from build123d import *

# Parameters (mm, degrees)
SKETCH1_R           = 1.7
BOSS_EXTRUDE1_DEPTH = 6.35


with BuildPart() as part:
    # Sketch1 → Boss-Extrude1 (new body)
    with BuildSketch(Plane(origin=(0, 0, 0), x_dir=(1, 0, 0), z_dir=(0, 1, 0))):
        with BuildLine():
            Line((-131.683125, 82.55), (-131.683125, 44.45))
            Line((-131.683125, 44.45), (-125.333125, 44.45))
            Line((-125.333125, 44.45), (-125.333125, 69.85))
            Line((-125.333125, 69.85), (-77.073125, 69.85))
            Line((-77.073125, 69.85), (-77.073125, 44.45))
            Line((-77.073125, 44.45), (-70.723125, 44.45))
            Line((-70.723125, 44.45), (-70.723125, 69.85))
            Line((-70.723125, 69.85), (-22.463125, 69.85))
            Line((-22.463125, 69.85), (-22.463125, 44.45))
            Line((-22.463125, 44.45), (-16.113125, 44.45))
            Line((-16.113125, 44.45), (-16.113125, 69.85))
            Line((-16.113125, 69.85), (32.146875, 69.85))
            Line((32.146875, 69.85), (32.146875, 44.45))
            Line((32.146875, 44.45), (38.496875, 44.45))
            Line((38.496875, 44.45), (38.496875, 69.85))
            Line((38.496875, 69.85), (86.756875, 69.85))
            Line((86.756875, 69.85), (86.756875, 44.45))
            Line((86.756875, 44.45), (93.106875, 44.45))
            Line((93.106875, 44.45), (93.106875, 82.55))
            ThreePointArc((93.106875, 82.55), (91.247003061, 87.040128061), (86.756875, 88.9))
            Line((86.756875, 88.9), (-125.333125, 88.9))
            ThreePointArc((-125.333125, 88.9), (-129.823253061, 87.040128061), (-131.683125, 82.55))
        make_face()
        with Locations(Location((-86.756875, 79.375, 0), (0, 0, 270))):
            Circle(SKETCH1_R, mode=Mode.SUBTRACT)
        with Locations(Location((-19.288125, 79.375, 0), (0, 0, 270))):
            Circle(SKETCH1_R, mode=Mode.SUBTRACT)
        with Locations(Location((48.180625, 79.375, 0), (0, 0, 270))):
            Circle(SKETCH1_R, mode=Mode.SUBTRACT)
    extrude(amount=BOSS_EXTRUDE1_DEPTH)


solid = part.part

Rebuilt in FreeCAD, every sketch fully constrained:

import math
import FreeCAD as App
import Part
import Sketcher

V = App.Vector
Q = App.Units.Quantity

doc = App.newDocument("Part")
params = doc.addObject("Spreadsheet::Sheet", "Params")
for row, (alias, value) in enumerate([
    ("sketch1_height", "1 in"),
    ("sketch1_radius", "0.25 in"),
    ("sketch1_width", "1.9 in"),
    ("sketch1_height2", "1.5 in"),
    ("pad1_length", "0.25 in"),
], start=1):
    params.set(f"A{row}", alias)
    params.set(f"B{row}", "=" + value)
    params.setAlias(f"B{row}", alias)

body = doc.addObject("PartDesign::Body", "Body")

sketch1 = body.newObject("Sketcher::SketchObject", "Sketch")
sketch1.AttachmentSupport = (doc.getObject("XZ_Plane"), [""])
sketch1.MapMode = "FlatFace"
sketch1.addGeometry([
    Part.LineSegment(V(-131.7, -82.5, 0), V(-131.7, -44.5, 0)),
    Part.LineSegment(V(-131.7, -44.5, 0), V(-125.3, -44.5, 0)),
    Part.LineSegment(V(-125.3, -44.5, 0), V(-125.3, -69.8, 0)),
    Part.LineSegment(V(-125.3, -69.8, 0), V(-77.1, -69.8, 0)),
    Part.LineSegment(V(-77.1, -69.8, 0), V(-77.1, -44.5, 0)),
    Part.LineSegment(V(-77.1, -44.5, 0), V(-70.7, -44.5, 0)),
    Part.LineSegment(V(-70.7, -44.5, 0), V(-70.7, -69.8, 0)),
    Part.LineSegment(V(-70.7, -69.8, 0), V(-22.5, -69.8, 0)),
    Part.LineSegment(V(-22.5, -69.8, 0), V(-22.5, -44.5, 0)),
    Part.LineSegment(V(-22.5, -44.5, 0), V(-16.1, -44.5, 0)),
    Part.LineSegment(V(-16.1, -44.5, 0), V(-16.1, -69.8, 0)),
    Part.LineSegment(V(-16.1, -69.8, 0), V(32.1, -69.8, 0)),
    Part.LineSegment(V(32.1, -69.8, 0), V(32.1, -44.5, 0)),
    Part.LineSegment(V(32.1, -44.5, 0), V(38.5, -44.5, 0)),
    Part.LineSegment(V(38.5, -44.5, 0), V(38.5, -69.8, 0)),
    Part.LineSegment(V(38.5, -69.8, 0), V(86.8, -69.8, 0)),
    Part.LineSegment(V(86.8, -69.8, 0), V(86.8, -44.5, 0)),
    Part.LineSegment(V(86.8, -44.5, 0), V(93.1, -44.5, 0)),
    Part.LineSegment(V(93.1, -44.5, 0), V(93.1, -82.5, 0)),
    Part.ArcOfCircle(Part.Circle(V(86.8, -82.6, 0), V(0, 0, 1), 6.3), math.radians(-90), math.radians(0)),
    Part.LineSegment(V(86.8, -88.9, 0), V(-125.3, -88.9, 0)),
    Part.ArcOfCircle(Part.Circle(V(-125.3, -82.6, 0), V(0, 0, 1), 6.3), math.radians(180), math.radians(270)),
    Part.Circle(V(-86.8, -79.4, 0), V(0, 0, 1), 1.7),
    Part.Circle(V(-19.3, -79.4, 0), V(0, 0, 1), 1.7),
    Part.Circle(V(48.2, -79.4, 0), V(0, 0, 1), 1.7),
], False)
sketch1.addConstraint([
    Sketcher.Constraint("Coincident", 0, 2, 1, 1),
    Sketcher.Constraint("Coincident", 1, 2, 2, 1),
    Sketcher.Constraint("Coincident", 2, 2, 3, 1),
    Sketcher.Constraint("Coincident", 3, 2, 4, 1),
    Sketcher.Constraint("Coincident", 4, 2, 5, 1),
    Sketcher.Constraint("Coincident", 5, 2, 6, 1),
    Sketcher.Constraint("Coincident", 6, 2, 7, 1),
    Sketcher.Constraint("Coincident", 7, 2, 8, 1),
    Sketcher.Constraint("Coincident", 8, 2, 9, 1),
    Sketcher.Constraint("Coincident", 9, 2, 10, 1),
    Sketcher.Constraint("Coincident", 10, 2, 11, 1),
    Sketcher.Constraint("Coincident", 11, 2, 12, 1),
    Sketcher.Constraint("Coincident", 12, 2, 13, 1),
    Sketcher.Constraint("Coincident", 13, 2, 14, 1),
    Sketcher.Constraint("Coincident", 14, 2, 15, 1),
    Sketcher.Constraint("Coincident", 15, 2, 16, 1),
    Sketcher.Constraint("Coincident", 16, 2, 17, 1),
    Sketcher.Constraint("Coincident", 17, 2, 18, 1),
    Sketcher.Constraint("Tangent", 18, 2, 19, 2),
    Sketcher.Constraint("Tangent", 19, 1, 20, 1),
    Sketcher.Constraint("Tangent", 20, 2, 21, 2),
    Sketcher.Constraint("Tangent", 21, 1, 0, 1),
    Sketcher.Constraint("Vertical", 0),
    Sketcher.Constraint("Horizontal", 1),
    Sketcher.Constraint("Vertical", 2),
    Sketcher.Constraint("Horizontal", 3),
    Sketcher.Constraint("Vertical", 4),
    Sketcher.Constraint("Horizontal", 5),
    Sketcher.Constraint("Vertical", 6),
    Sketcher.Constraint("Horizontal", 7),
    Sketcher.Constraint("Vertical", 8),
    Sketcher.Constraint("Horizontal", 9),
    Sketcher.Constraint("Vertical", 10),
    Sketcher.Constraint("Horizontal", 11),
    Sketcher.Constraint("Vertical", 12),
    Sketcher.Constraint("Horizontal", 13),
    Sketcher.Constraint("Vertical", 14),
    Sketcher.Constraint("Horizontal", 15),
    Sketcher.Constraint("Vertical", 16),
    Sketcher.Constraint("Horizontal", 17),
    Sketcher.Constraint("Vertical", 18),
    Sketcher.Constraint("Horizontal", 20),
    Sketcher.Constraint("Equal", 19, 21),
    Sketcher.Constraint("Equal", 22, 23),
    Sketcher.Constraint("Equal", 23, 24),
    Sketcher.Constraint("Horizontal", 22, 3, 23, 3),
    Sketcher.Constraint("Horizontal", 23, 3, 24, 3),
    Sketcher.Constraint("Horizontal", 1, 2, 4, 2),
    Sketcher.Constraint("Horizontal", 3, 2, 6, 2),
    Sketcher.Constraint("Horizontal", 5, 2, 8, 2),
    Sketcher.Constraint("Horizontal", 7, 2, 10, 2),
    Sketcher.Constraint("Horizontal", 9, 2, 12, 2),
    Sketcher.Constraint("Horizontal", 11, 2, 14, 2),
    Sketcher.Constraint("Horizontal", 13, 2, 16, 2),
    Sketcher.Constraint("Vertical", 21, 3, 1, 2),
    Sketcher.Constraint("Vertical", 19, 3, 15, 2),
    Sketcher.Constraint("Equal", 1, 5),
    Sketcher.Constraint("Equal", 3, 7),
    Sketcher.Constraint("Equal", 5, 9),
    Sketcher.Constraint("Equal", 7, 11),
    Sketcher.Constraint("Equal", 9, 13),
    Sketcher.Constraint("Equal", 11, 15),
    Sketcher.Constraint("DistanceY", 2, 2, 2, 1, Q("1 in")),
    Sketcher.Constraint("Radius", 19, Q("0.25 in")),
    Sketcher.Constraint("DistanceX", 3, 1, 3, 2, Q("1.9 in")),
    Sketcher.Constraint("DistanceY", 0, 1, 0, 2, Q("1.5 in")),
    Sketcher.Constraint("DistanceY", 19, 1, -1, 1, Q("3.5 in")),
    Sketcher.Constraint("Diameter", 22, 3.4),
    Sketcher.Constraint("DistanceY", 22, 3, -1, 1, Q("3.125 in")),
    Sketcher.Constraint("DistanceX", -1, 1, 11, 2, Q("1.265625 in")),
    Sketcher.Constraint("DistanceX", 22, 3, 23, 3, Q("2.65625 in")),
    Sketcher.Constraint("DistanceX", 23, 3, 19, 3, Q("4.175 in")),
    Sketcher.Constraint("DistanceX", 23, 3, 24, 3, Q("2.65625 in")),
])
sketch1.setExpression("Constraints[62]", "Params.sketch1_height")
sketch1.setExpression("Constraints[63]", "Params.sketch1_radius")
sketch1.setExpression("Constraints[64]", "Params.sketch1_width")
sketch1.setExpression("Constraints[65]", "Params.sketch1_height2")
pad1 = body.newObject("PartDesign::Pad", "Pad")
pad1.Profile = sketch1
pad1.setExpression("Length", "Params.pad1_length")
pad1.Reversed = True

doc.recompute()
